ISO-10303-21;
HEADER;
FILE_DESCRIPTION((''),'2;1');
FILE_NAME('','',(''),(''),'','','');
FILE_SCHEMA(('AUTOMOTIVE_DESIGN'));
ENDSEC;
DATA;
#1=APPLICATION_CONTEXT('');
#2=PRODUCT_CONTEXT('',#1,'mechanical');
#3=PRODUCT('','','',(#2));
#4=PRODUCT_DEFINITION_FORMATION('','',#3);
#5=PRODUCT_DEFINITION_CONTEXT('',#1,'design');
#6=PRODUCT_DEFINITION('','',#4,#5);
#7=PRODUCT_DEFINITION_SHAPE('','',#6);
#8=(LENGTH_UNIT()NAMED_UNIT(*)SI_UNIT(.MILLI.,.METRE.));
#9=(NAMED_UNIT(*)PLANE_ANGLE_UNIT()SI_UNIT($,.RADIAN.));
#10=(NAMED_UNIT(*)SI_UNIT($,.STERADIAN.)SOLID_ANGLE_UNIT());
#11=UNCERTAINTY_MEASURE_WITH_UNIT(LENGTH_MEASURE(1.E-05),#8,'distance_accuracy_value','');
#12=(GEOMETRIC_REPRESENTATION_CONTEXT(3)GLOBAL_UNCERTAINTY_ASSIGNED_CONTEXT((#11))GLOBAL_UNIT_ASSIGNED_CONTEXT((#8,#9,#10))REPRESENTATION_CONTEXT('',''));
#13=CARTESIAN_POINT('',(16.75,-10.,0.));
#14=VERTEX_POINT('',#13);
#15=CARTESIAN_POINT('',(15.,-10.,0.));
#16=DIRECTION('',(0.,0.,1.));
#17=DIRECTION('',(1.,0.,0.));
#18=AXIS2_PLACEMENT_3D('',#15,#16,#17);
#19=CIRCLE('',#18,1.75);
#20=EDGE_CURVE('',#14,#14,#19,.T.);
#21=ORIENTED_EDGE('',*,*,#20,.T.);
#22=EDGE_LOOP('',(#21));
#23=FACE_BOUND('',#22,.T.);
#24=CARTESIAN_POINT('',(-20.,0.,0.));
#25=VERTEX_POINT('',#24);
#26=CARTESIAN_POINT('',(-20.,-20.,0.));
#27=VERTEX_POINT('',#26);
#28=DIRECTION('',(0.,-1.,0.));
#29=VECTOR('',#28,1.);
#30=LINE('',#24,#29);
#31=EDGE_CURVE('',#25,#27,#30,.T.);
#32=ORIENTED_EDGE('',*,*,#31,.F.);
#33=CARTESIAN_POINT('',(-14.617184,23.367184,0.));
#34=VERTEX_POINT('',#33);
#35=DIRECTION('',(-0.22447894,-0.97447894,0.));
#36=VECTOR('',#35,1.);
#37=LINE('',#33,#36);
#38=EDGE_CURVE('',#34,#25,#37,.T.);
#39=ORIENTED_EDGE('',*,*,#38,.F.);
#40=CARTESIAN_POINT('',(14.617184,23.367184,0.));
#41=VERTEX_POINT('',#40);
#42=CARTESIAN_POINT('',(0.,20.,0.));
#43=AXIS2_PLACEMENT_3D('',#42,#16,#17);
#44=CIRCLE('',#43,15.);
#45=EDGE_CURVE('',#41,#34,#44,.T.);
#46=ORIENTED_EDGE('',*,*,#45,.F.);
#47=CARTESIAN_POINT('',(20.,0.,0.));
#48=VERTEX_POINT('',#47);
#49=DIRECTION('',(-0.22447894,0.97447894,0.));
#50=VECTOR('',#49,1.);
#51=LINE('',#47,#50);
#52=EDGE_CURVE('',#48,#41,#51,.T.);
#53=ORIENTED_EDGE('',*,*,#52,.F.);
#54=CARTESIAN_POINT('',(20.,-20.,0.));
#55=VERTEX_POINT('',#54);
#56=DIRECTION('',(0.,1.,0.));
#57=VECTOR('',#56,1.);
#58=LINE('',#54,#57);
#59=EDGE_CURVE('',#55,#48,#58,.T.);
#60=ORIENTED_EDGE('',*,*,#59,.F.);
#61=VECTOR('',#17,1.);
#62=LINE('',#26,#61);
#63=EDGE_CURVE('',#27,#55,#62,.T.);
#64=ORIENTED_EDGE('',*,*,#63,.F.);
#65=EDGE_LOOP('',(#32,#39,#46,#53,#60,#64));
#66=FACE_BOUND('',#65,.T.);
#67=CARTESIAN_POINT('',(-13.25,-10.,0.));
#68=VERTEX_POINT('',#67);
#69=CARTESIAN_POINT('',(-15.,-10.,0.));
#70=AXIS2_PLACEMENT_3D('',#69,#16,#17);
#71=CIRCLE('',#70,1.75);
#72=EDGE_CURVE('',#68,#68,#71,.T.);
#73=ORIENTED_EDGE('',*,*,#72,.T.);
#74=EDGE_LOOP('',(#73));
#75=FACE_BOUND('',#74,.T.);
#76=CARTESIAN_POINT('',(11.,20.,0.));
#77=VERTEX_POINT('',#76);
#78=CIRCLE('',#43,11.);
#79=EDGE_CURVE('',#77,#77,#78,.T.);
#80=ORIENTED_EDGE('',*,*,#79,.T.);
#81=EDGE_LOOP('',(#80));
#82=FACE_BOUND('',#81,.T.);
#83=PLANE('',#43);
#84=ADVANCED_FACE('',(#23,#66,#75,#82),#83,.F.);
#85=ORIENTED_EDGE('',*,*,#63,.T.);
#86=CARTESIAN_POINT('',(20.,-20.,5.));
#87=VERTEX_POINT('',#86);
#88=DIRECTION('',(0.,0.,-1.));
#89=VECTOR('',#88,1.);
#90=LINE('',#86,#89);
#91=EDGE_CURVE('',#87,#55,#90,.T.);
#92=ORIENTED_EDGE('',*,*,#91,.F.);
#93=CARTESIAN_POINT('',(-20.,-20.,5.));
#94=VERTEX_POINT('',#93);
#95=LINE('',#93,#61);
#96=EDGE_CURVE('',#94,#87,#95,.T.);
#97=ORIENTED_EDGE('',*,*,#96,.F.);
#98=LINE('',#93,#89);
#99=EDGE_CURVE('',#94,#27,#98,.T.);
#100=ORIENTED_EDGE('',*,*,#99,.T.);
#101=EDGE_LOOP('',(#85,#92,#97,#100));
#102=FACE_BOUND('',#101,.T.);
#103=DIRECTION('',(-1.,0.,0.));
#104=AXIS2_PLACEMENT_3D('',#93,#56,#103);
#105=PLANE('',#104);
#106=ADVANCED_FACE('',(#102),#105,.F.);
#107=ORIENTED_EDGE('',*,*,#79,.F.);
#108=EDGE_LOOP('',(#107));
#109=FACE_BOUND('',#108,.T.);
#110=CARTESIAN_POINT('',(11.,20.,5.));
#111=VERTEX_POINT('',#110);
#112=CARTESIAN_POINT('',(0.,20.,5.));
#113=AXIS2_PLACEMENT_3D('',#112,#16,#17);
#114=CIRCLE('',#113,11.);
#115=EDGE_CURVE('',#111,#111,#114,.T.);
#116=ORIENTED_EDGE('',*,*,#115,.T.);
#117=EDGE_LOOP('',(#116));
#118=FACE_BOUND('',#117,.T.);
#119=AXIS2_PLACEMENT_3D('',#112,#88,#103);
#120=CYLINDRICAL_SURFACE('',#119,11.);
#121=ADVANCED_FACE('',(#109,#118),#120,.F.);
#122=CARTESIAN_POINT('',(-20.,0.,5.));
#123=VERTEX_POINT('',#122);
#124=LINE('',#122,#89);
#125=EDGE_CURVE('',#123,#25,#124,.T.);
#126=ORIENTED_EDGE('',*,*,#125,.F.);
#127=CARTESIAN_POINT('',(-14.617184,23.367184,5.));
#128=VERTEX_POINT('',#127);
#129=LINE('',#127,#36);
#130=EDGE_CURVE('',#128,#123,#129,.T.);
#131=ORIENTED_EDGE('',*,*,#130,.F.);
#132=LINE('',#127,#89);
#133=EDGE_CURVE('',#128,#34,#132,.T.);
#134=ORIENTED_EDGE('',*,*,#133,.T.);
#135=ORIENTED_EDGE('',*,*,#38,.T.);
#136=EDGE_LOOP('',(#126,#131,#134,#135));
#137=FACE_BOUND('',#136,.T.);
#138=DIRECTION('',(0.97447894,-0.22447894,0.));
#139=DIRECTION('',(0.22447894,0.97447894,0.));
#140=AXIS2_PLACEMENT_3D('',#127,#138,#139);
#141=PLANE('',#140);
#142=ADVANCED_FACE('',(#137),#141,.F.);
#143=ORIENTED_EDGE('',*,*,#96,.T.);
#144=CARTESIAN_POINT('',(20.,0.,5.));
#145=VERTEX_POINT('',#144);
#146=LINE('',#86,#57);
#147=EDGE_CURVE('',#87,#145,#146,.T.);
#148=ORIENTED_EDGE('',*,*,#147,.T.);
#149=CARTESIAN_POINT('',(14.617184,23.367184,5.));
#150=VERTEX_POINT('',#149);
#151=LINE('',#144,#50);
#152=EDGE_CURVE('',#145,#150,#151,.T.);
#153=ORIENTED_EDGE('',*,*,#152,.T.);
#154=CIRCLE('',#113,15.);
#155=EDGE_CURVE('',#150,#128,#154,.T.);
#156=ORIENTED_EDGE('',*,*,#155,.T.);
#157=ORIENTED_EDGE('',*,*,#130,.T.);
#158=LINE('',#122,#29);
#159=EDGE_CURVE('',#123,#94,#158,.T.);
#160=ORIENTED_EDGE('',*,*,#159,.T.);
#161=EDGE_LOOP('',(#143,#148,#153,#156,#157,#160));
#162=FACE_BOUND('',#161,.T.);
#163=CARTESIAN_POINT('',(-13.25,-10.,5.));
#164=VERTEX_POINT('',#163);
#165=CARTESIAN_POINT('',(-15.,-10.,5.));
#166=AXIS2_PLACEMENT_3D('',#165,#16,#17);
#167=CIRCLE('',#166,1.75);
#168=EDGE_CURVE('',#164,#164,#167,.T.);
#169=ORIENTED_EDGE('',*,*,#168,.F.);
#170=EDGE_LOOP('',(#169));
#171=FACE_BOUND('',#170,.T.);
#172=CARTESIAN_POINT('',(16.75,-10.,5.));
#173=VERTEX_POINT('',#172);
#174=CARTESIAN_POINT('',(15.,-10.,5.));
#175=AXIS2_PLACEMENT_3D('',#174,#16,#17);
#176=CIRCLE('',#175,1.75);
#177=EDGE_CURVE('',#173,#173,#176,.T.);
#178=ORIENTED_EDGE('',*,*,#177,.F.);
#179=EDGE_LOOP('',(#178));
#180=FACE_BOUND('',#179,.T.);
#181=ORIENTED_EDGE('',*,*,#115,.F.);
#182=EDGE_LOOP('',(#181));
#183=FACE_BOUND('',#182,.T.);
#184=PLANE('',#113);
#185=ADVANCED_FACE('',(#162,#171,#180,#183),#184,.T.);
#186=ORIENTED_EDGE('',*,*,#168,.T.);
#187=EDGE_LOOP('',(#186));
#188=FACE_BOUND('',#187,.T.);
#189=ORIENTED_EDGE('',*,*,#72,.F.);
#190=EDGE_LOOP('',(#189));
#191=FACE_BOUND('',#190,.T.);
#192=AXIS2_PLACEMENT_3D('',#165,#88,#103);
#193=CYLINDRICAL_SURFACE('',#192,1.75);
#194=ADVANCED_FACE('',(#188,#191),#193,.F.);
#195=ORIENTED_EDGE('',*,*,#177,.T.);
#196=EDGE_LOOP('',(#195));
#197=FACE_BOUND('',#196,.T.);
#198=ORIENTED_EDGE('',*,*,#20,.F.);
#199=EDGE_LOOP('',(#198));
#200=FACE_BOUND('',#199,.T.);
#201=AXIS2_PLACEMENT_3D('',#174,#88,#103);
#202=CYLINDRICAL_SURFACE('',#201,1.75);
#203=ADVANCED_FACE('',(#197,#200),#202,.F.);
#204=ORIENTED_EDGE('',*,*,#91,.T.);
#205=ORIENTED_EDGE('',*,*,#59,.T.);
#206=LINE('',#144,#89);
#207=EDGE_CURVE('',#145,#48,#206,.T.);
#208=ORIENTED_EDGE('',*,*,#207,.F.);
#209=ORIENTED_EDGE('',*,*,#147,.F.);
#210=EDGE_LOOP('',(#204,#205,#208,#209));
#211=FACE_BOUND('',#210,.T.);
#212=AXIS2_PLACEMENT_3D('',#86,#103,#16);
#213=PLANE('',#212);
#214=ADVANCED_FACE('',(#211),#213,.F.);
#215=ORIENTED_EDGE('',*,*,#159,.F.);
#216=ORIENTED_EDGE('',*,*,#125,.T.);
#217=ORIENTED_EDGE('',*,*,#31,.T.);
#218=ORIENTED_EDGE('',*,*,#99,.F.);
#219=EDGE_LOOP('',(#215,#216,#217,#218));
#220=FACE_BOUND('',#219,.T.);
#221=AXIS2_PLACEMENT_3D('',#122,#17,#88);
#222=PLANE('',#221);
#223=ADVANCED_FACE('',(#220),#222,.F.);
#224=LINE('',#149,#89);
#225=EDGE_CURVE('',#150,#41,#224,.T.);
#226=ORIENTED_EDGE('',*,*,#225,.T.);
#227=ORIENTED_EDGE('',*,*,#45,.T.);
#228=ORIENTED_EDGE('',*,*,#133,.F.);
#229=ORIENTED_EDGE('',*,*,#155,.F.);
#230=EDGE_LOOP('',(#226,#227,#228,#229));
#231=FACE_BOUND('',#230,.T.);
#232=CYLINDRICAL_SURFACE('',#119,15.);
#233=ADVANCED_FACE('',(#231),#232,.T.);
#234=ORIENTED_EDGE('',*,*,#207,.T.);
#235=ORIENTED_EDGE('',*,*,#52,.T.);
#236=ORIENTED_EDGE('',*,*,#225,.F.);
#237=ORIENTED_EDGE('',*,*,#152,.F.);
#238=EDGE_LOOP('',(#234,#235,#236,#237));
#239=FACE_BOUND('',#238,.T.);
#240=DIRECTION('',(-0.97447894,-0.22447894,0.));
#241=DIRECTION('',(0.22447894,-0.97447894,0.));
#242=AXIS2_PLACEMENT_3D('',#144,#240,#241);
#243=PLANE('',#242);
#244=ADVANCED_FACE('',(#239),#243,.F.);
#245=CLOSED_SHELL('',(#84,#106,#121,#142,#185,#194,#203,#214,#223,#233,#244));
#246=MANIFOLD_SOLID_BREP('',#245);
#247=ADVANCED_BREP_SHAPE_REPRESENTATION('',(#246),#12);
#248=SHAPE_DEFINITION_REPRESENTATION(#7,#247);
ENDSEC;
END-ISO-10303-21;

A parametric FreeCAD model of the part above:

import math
import FreeCAD as App
import Part
import Sketcher

doc = App.newDocument("Part")
body = doc.addObject("PartDesign::Body", "Body")

sketch1 = body.newObject("Sketcher::SketchObject", "Sketch")
sketch1.AttachmentSupport = (doc.getObject("XY_Plane"), [""])
sketch1.MapMode = "FlatFace"
sketch1.addGeometry([
    Part.LineSegment(App.Vector(-14.6, 23.4, 0), App.Vector(-20, 0, 0)),
    Part.LineSegment(App.Vector(-20, 0, 0), App.Vector(-20, -20, 0)),
    Part.LineSegment(App.Vector(-20, -20, 0), App.Vector(20, -20, 0)),
    Part.LineSegment(App.Vector(20, -20, 0), App.Vector(20, 0, 0)),
    Part.LineSegment(App.Vector(20, 0, 0), App.Vector(14.6, 23.4, 0)),
    Part.ArcOfCircle(Part.Circle(App.Vector(0, 20, 0), App.Vector(0, 0, 1), 15), math.radians(13), math.radians(167)),
    Part.Circle(App.Vector(-15, -10, 0), App.Vector(0, 0, 1), 1.8),
    Part.Circle(App.Vector(15, -10, 0), App.Vector(0, 0, 1), 1.8),
    Part.Circle(App.Vector(0, 20, 0), App.Vector(0, 0, 1), 11),
], False)
sketch1.addConstraint([
    Sketcher.Constraint("Coincident", 0, 2, 1, 1),
    Sketcher.Constraint("Coincident", 1, 2, 2, 1),
    Sketcher.Constraint("Coincident", 2, 2, 3, 1),
    Sketcher.Constraint("Coincident", 3, 2, 4, 1),
    Sketcher.Constraint("Tangent", 4, 2, 5, 1),
    Sketcher.Constraint("Tangent", 5, 2, 0, 1),
    Sketcher.Constraint("Vertical", 1),
    Sketcher.Constraint("Horizontal", 2),
    Sketcher.Constraint("Vertical", 3),
    Sketcher.Constraint("Coincident", 8, 3, 5, 3),
    Sketcher.Constraint("Equal", 6, 7),
    Sketcher.Constraint("Symmetric", 0, 2, 3, 2, -1, 1),
    Sketcher.Constraint("Symmetric", 6, 3, 7, 3, -2),
    Sketcher.Constraint("Symmetric", 4, 2, 5, 2, -2),
    Sketcher.Constraint("Diameter", 8, 22.0),
    Sketcher.Constraint("Radius", 5, 15.0),
    Sketcher.Constraint("Diameter", 6, 3.5),
    Sketcher.Constraint("DistanceX", 2, 1, 2, 2, 40.0),
    Sketcher.Constraint("DistanceY", 1, 2, 1, 1, 20.0),
    Sketcher.Constraint("DistanceY", -1, 1, 5, 3, 20.0),
    Sketcher.Constraint("DistanceX", 6, 3, -1, 1, 15.0),
    Sketcher.Constraint("DistanceY", 6, 3, -1, 1, 10.0),
])
pad1 = body.newObject("PartDesign::Pad", "Pad")
pad1.Profile = sketch1
pad1.Length = 5

doc.recompute()
